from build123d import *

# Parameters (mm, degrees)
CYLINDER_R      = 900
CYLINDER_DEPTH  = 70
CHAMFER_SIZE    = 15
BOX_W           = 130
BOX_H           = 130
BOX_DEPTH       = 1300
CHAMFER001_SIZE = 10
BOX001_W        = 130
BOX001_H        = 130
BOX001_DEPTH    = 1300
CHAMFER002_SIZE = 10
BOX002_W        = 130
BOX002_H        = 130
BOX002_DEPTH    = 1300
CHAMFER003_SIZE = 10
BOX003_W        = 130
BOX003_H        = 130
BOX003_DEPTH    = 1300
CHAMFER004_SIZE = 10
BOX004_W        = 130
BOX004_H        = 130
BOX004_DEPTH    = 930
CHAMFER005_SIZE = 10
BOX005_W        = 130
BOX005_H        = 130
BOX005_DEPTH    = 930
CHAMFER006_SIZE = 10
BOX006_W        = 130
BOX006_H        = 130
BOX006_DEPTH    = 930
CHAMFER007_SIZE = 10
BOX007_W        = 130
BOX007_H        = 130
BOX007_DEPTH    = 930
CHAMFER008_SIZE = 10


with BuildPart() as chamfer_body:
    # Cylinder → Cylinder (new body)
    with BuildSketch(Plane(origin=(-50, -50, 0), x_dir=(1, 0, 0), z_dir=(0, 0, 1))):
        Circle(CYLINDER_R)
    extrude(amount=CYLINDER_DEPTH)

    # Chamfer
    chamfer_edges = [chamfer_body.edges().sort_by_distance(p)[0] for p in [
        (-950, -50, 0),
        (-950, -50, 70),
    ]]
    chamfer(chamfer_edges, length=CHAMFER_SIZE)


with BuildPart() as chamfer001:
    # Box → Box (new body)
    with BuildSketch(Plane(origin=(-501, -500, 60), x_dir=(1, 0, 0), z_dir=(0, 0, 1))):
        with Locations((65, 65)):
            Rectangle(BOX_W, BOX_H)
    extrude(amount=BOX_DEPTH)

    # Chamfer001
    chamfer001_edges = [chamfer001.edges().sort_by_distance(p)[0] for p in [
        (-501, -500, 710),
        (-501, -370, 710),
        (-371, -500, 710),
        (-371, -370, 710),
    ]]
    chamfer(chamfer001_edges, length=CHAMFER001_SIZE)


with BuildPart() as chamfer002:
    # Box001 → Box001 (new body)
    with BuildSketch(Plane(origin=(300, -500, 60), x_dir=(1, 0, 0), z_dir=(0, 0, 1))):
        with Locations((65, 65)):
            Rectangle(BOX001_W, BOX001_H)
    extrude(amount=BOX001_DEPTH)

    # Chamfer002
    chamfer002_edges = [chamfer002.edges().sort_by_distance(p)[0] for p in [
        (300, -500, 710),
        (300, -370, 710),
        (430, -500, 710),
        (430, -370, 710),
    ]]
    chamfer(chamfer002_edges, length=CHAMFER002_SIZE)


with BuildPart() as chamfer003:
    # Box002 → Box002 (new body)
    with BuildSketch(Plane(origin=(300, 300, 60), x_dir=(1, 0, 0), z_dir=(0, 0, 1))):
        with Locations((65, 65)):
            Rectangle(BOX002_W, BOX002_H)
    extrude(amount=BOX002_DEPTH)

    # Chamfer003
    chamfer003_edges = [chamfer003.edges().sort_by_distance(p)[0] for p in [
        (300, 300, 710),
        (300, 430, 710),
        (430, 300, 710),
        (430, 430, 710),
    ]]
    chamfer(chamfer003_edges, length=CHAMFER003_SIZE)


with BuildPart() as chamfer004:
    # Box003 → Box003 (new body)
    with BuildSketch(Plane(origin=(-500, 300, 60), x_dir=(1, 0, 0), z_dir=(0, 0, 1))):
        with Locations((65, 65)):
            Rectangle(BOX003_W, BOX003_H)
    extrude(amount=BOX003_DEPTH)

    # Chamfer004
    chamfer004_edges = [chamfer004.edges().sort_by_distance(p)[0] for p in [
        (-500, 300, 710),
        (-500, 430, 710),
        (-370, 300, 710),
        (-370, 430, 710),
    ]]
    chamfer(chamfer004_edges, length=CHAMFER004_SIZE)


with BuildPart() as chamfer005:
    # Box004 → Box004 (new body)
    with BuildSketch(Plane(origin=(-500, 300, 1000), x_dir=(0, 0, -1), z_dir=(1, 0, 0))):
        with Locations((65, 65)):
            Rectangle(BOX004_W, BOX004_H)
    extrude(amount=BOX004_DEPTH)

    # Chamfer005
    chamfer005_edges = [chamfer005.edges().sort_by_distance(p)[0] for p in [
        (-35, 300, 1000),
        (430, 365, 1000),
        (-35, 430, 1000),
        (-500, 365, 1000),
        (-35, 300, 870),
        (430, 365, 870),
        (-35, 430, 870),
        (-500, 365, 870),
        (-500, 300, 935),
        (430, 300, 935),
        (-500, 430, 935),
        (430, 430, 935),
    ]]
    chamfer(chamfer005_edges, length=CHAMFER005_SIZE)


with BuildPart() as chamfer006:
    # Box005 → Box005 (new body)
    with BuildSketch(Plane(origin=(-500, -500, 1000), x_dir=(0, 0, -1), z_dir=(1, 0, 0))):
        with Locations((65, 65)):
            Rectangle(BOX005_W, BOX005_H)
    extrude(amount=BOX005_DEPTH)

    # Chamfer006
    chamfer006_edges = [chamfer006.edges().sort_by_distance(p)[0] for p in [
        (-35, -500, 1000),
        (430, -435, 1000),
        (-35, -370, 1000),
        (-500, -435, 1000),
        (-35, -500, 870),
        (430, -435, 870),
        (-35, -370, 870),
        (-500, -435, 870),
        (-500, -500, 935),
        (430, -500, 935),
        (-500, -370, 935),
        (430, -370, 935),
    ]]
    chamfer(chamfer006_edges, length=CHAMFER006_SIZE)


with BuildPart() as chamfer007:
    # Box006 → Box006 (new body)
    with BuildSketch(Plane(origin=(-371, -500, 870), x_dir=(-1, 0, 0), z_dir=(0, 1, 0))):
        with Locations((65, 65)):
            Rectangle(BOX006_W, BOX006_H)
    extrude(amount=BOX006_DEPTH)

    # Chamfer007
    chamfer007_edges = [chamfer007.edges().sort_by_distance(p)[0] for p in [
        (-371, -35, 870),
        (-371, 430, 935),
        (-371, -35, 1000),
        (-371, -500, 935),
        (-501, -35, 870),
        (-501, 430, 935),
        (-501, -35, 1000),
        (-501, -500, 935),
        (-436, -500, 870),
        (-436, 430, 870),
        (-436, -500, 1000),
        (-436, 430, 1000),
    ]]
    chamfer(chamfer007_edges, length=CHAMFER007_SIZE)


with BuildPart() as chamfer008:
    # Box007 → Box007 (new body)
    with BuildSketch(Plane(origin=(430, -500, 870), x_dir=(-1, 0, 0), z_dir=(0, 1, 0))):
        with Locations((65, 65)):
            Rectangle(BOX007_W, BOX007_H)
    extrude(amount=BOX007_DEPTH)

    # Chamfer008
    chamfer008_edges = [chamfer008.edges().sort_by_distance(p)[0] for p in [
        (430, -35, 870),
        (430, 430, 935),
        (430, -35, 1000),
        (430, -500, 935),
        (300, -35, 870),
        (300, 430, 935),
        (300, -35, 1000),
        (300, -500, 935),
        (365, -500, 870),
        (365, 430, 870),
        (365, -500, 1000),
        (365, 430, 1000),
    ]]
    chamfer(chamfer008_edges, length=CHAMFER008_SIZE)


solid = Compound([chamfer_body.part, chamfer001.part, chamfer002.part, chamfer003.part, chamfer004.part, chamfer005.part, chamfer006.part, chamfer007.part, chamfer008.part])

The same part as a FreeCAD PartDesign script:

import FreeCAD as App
import Part
import Sketcher

V = App.Vector


def edges_at(feature, points):
    """Names of the edges that pass closest to the given points."""
    edges = feature.Shape.Edges
    near = lambda p: min(range(len(edges)), key=lambda i: edges[i].distToShape(Part.Vertex(*p))[0])
    return sorted({f"Edge{near(p) + 1}" for p in points})

doc = App.newDocument("Part")
body = doc.addObject("PartDesign::Body", "Body")

sketch1 = doc.addObject("Sketcher::SketchObject", "Sketch")
body.addObject(sketch1)
sketch1.AttachmentSupport = (doc.XY_Plane, [""])
sketch1.MapMode = "FlatFace"
sketch1.addGeometry(Part.Circle(V(-50, -50, 0), V(0, 0, 1), 900), False)
sketch1.addConstraint([
    Sketcher.Constraint("Diameter", 0, 1800.0),
    Sketcher.Constraint("DistanceX", 0, 3, -1, 1, 50.0),
    Sketcher.Constraint("DistanceY", 0, 3, -1, 1, 50.0),
])
pad1 = doc.addObject("PartDesign::Pad", "Pad")
body.addObject(pad1)
pad1.Profile = sketch1
pad1.Length = 70
doc.recompute()

chamfer = doc.addObject("PartDesign::Chamfer", "Chamfer")
body.addObject(chamfer)
chamfer.Base = (pad1, edges_at(pad1, [(-950, -50, 0), (-950, -50, 70)]))
chamfer.Size = 15
body2 = doc.addObject("PartDesign::Body", "Body001")

sketch2 = doc.addObject("Sketcher::SketchObject", "Sketch001")
body2.addObject(sketch2)
sketch2.AttachmentSupport = (doc.getObject("XY_Plane001"), [""])
sketch2.MapMode = "FlatFace"
sketch2.AttachmentOffset = App.Placement(V(0, 0, 60), App.Rotation())
sketch2.addGeometry([
    Part.LineSegment(V(-501, -370, 0), V(-501, -500, 0)),
    Part.LineSegment(V(-501, -500, 0), V(-371, -500, 0)),
    Part.LineSegment(V(-371, -500, 0), V(-371, -370, 0)),
    Part.LineSegment(V(-371, -370, 0), V(-501, -370, 0)),
], False)
sketch2.addConstraint([
    Sketcher.Constraint("Coincident", 0, 2, 1, 1),
    Sketcher.Constraint("Coincident", 1, 2, 2, 1),
    Sketcher.Constraint("Coincident", 2, 2, 3, 1),
    Sketcher.Constraint("Coincident", 3, 2, 0, 1),
    Sketcher.Constraint("Vertical", 0),
    Sketcher.Constraint("Horizontal", 1),
    Sketcher.Constraint("Vertical", 2),
    Sketcher.Constraint("Horizontal", 3),
    Sketcher.Constraint("Equal", 3, 0),
    Sketcher.Constraint("DistanceX", 1, 1, 1, 2, 130.0),
    Sketcher.Constraint("DistanceX", 0, 2, -1, 1, 501.0),
    Sketcher.Constraint("DistanceY", 0, 2, -1, 1, 500.0),
])
pad2 = doc.addObject("PartDesign::Pad", "Pad001")
body2.addObject(pad2)
pad2.Profile = sketch2
pad2.Length = 1300
doc.recompute()

chamfer2 = doc.addObject("PartDesign::Chamfer", "Chamfer001")
body2.addObject(chamfer2)
chamfer2.Base = (pad2, edges_at(pad2, [
    (-501, -500, 710),
    (-501, -370, 710),
    (-371, -500, 710),
    (-371, -370, 710),
]))
chamfer2.Size = 10
body3 = doc.addObject("PartDesign::Body", "Body002")

sketch3 = doc.addObject("Sketcher::SketchObject", "Sketch002")
body3.addObject(sketch3)
sketch3.AttachmentSupport = (doc.getObject("XY_Plane002"), [""])
sketch3.MapMode = "FlatFace"
sketch3.AttachmentOffset = App.Placement(V(0, 0, 60), App.Rotation())
sketch3.addGeometry([
    Part.LineSegment(V(300, -370, 0), V(300, -500, 0)),
    Part.LineSegment(V(300, -500, 0), V(430, -500, 0)),
    Part.LineSegment(V(430, -500, 0), V(430, -370, 0)),
    Part.LineSegment(V(430, -370, 0), V(300, -370, 0)),
], False)
sketch3.addConstraint([
    Sketcher.Constraint("Coincident", 0, 2, 1, 1),
    Sketcher.Constraint("Coincident", 1, 2, 2, 1),
    Sketcher.Constraint("Coincident", 2, 2, 3, 1),
    Sketcher.Constraint("Coincident", 3, 2, 0, 1),
    Sketcher.Constraint("Vertical", 0),
    Sketcher.Constraint("Horizontal", 1),
    Sketcher.Constraint("Vertical", 2),
    Sketcher.Constraint("Horizontal", 3),
    Sketcher.Constraint("Equal", 3, 0),
    Sketcher.Constraint("DistanceX", 1, 1, 1, 2, 130.0),
    Sketcher.Constraint("DistanceX", -1, 1, 0, 2, 300.0),
    Sketcher.Constraint("DistanceY", 0, 2, -1, 1, 500.0),
])
pad3 = doc.addObject("PartDesign::Pad", "Pad002")
body3.addObject(pad3)
pad3.Profile = sketch3
pad3.Length = 1300
doc.recompute()

chamfer3 = doc.addObject("PartDesign::Chamfer", "Chamfer002")
body3.addObject(chamfer3)
chamfer3.Base = (pad3, edges_at(pad3, [
    (300, -500, 710),
    (300, -370, 710),
    (430, -500, 710),
    (430, -370, 710),
]))
chamfer3.Size = 10
body4 = doc.addObject("PartDesign::Body", "Body003")

sketch4 = doc.addObject("Sketcher::SketchObject", "Sketch003")
body4.addObject(sketch4)
sketch4.AttachmentSupport = (doc.getObject("XY_Plane003"), [""])
sketch4.MapMode = "FlatFace"
sketch4.AttachmentOffset = App.Placement(V(0, 0, 60), App.Rotation())
sketch4.addGeometry([
    Part.LineSegment(V(300, 430, 0), V(300, 300, 0)),
    Part.LineSegment(V(300, 300, 0), V(430, 300, 0)),
    Part.LineSegment(V(430, 300, 0), V(430, 430, 0)),
    Part.LineSegment(V(430, 430, 0), V(300, 430, 0)),
], False)
sketch4.addConstraint([
    Sketcher.Constraint("Coincident", 0, 2, 1, 1),
    Sketcher.Constraint("Coincident", 1, 2, 2, 1),
    Sketcher.Constraint("Coincident", 2, 2, 3, 1),
    Sketcher.Constraint("Coincident", 3, 2, 0, 1),
    Sketcher.Constraint("Vertical", 0),
    Sketcher.Constraint("Horizontal", 1),
    Sketcher.Constraint("Vertical", 2),
    Sketcher.Constraint("Horizontal", 3),
    Sketcher.Constraint("Equal", 3, 0),
    Sketcher.Constraint("DistanceX", 1, 1, 1, 2, 130.0),
    Sketcher.Constraint("DistanceX", -1, 1, 0, 2, 300.0),
    Sketcher.Constraint("DistanceY", -1, 1, 0, 2, 300.0),
])
pad4 = doc.addObject("PartDesign::Pad", "Pad003")
body4.addObject(pad4)
pad4.Profile = sketch4
pad4.Length = 1300
doc.recompute()

chamfer4 = doc.addObject("PartDesign::Chamfer", "Chamfer003")
body4.addObject(chamfer4)
chamfer4.Base = (pad4, edges_at(pad4, [
    (300, 300, 710),
    (300, 430, 710),
    (430, 300, 710),
    (430, 430, 710),
]))
chamfer4.Size = 10
body5 = doc.addObject("PartDesign::Body", "Body004")

sketch5 = doc.addObject("Sketcher::SketchObject", "Sketch004")
body5.addObject(sketch5)
sketch5.AttachmentSupport = (doc.getObject("XY_Plane004"), [""])
sketch5.MapMode = "FlatFace"
sketch5.AttachmentOffset = App.Placement(V(0, 0, 60), App.Rotation())
sketch5.addGeometry([
    Part.LineSegment(V(-500, 430, 0), V(-500, 300, 0)),
    Part.LineSegment(V(-500, 300, 0), V(-370, 300, 0)),
    Part.LineSegment(V(-370, 300, 0), V(-370, 430, 0)),
    Part.LineSegment(V(-370, 430, 0), V(-500, 430, 0)),
], False)
sketch5.addConstraint([
    Sketcher.Constraint("Coincident", 0, 2, 1, 1),
    Sketcher.Constraint("Coincident", 1, 2, 2, 1),
    Sketcher.Constraint("Coincident", 2, 2, 3, 1),
    Sketcher.Constraint("Coincident", 3, 2, 0, 1),
    Sketcher.Constraint("Vertical", 0),
    Sketcher.Constraint("Horizontal", 1),
    Sketcher.Constraint("Vertical", 2),
    Sketcher.Constraint("Horizontal", 3),
    Sketcher.Constraint("Equal", 3, 0),
    Sketcher.Constraint("DistanceX", 1, 1, 1, 2, 130.0),
    Sketcher.Constraint("DistanceX", 0, 2, -1, 1, 500.0),
    Sketcher.Constraint("DistanceY", -1, 1, 0, 2, 300.0),
])
pad5 = doc.addObject("PartDesign::Pad", "Pad004")
body5.addObject(pad5)
pad5.Profile = sketch5
pad5.Length = 1300
doc.recompute()

chamfer5 = doc.addObject("PartDesign::Chamfer", "Chamfer004")
body5.addObject(chamfer5)
chamfer5.Base = (pad5, edges_at(pad5, [
    (-500, 300, 710),
    (-500, 430, 710),
    (-370, 300, 710),
    (-370, 430, 710),
]))
chamfer5.Size = 10
body6 = doc.addObject("PartDesign::Body", "Body005")

sketch6 = doc.addObject("Sketcher::SketchObject", "Sketch005")
body6.addObject(sketch6)
sketch6.AttachmentSupport = (doc.getObject("YZ_Plane005"), [""])
sketch6.MapMode = "FlatFace"
sketch6.AttachmentOffset = App.Placement(V(0, 0, -500), App.Rotation())
sketch6.addGeometry([
    Part.LineSegment(V(430, 1000, 0), V(300, 1000, 0)),
    Part.LineSegment(V(300, 1000, 0), V(300, 870, 0)),
    Part.LineSegment(V(300, 870, 0), V(430, 870, 0)),
    Part.LineSegment(V(430, 870, 0), V(430, 1000, 0)),
], False)
sketch6.addConstraint([
    Sketcher.Constraint("Coincident", 0, 2, 1, 1),
    Sketcher.Constraint("Coincident", 1, 2, 2, 1),
    Sketcher.Constraint("Coincident", 2, 2, 3, 1),
    Sketcher.Constraint("Coincident", 3, 2, 0, 1),
    Sketcher.Constraint("Horizontal", 0),
    Sketcher.Constraint("Vertical", 1),
    Sketcher.Constraint("Horizontal", 2),
    Sketcher.Constraint("Vertical", 3),
    Sketcher.Constraint("Equal", 2, 1),
    Sketcher.Constraint("DistanceX", 0, 2, 0, 1, 130.0),
    Sketcher.Constraint("DistanceX", -1, 1, 0, 2, 300.0),
    Sketcher.Constraint("DistanceY", -1, 1, 0, 2, 1000.0),
])
pad6 = doc.addObject("PartDesign::Pad", "Pad005")
body6.addObject(pad6)
pad6.Profile = sketch6
pad6.Length = 930
doc.recompute()

chamfer6 = doc.addObject("PartDesign::Chamfer", "Chamfer005")
body6.addObject(chamfer6)
chamfer6.Base = (pad6, ["Edge1"])
chamfer6.UseAllEdges = True
chamfer6.Size = 10
body7 = doc.addObject("PartDesign::Body", "Body006")

sketch7 = doc.addObject("Sketcher::SketchObject", "Sketch006")
body7.addObject(sketch7)
sketch7.AttachmentSupport = (doc.getObject("YZ_Plane006"), [""])
sketch7.MapMode = "FlatFace"
sketch7.AttachmentOffset = App.Placement(V(0, 0, -500), App.Rotation())
sketch7.addGeometry([
    Part.LineSegment(V(-370, 1000, 0), V(-500, 1000, 0)),
    Part.LineSegment(V(-500, 1000, 0), V(-500, 870, 0)),
    Part.LineSegment(V(-500, 870, 0), V(-370, 870, 0)),
    Part.LineSegment(V(-370, 870, 0), V(-370, 1000, 0)),
], False)
sketch7.addConstraint([
    Sketcher.Constraint("Coincident", 0, 2, 1, 1),
    Sketcher.Constraint("Coincident", 1, 2, 2, 1),
    Sketcher.Constraint("Coincident", 2, 2, 3, 1),
    Sketcher.Constraint("Coincident", 3, 2, 0, 1),
    Sketcher.Constraint("Horizontal", 0),
    Sketcher.Constraint("Vertical", 1),
    Sketcher.Constraint("Horizontal", 2),
    Sketcher.Constraint("Vertical", 3),
    Sketcher.Constraint("Equal", 2, 1),
    Sketcher.Constraint("DistanceX", 0, 2, 0, 1, 130.0),
    Sketcher.Constraint("DistanceX", 0, 2, -1, 1, 500.0),
    Sketcher.Constraint("DistanceY", -1, 1, 0, 2, 1000.0),
])
pad7 = doc.addObject("PartDesign::Pad", "Pad006")
body7.addObject(pad7)
pad7.Profile = sketch7
pad7.Length = 930
doc.recompute()

chamfer7 = doc.addObject("PartDesign::Chamfer", "Chamfer006")
body7.addObject(chamfer7)
chamfer7.Base = (pad7, ["Edge1"])
chamfer7.UseAllEdges = True
chamfer7.Size = 10
body8 = doc.addObject("PartDesign::Body", "Body007")

sketch8 = doc.addObject("Sketcher::SketchObject", "Sketch007")
body8.addObject(sketch8)
sketch8.AttachmentSupport = (doc.getObject("XZ_Plane007"), [""])
sketch8.MapMode = "FlatFace"
sketch8.AttachmentOffset = App.Placement(V(0, 0, 500), App.Rotation())
sketch8.addGeometry([
    Part.LineSegment(V(-371, 1000, 0), V(-371, 870, 0)),
    Part.LineSegment(V(-371, 870, 0), V(-501, 870, 0)),
    Part.LineSegment(V(-501, 870, 0), V(-501, 1000, 0)),
    Part.LineSegment(V(-501, 1000, 0), V(-371, 1000, 0)),
], False)
sketch8.addConstraint([
    Sketcher.Constraint("Coincident", 0, 2, 1, 1),
    Sketcher.Constraint("Coincident", 1, 2, 2, 1),
    Sketcher.Constraint("Coincident", 2, 2, 3, 1),
    Sketcher.Constraint("Coincident", 3, 2, 0, 1),
    Sketcher.Constraint("Vertical", 0),
    Sketcher.Constraint("Horizontal", 1),
    Sketcher.Constraint("Vertical", 2),
    Sketcher.Constraint("Horizontal", 3),
    Sketcher.Constraint("Equal", 3, 0),
    Sketcher.Constraint("DistanceX", 1, 2, 1, 1, 130.0),
    Sketcher.Constraint("DistanceX", 0, 2, -1, 1, 371.0),
    Sketcher.Constraint("DistanceY", -1, 1, 0, 2, 870.0),
])
pad8 = doc.addObject("PartDesign::Pad", "Pad007")
body8.addObject(pad8)
pad8.Profile = sketch8
pad8.Length = 930
pad8.Reversed = True
doc.recompute()

chamfer8 = doc.addObject("PartDesign::Chamfer", "Chamfer007")
body8.addObject(chamfer8)
chamfer8.Base = (pad8, ["Edge1"])
chamfer8.UseAllEdges = True
chamfer8.Size = 10
body9 = doc.addObject("PartDesign::Body", "Body008")

sketch9 = doc.addObject("Sketcher::SketchObject", "Sketch008")
body9.addObject(sketch9)
sketch9.AttachmentSupport = (doc.getObject("XZ_Plane008"), [""])
sketch9.MapMode = "FlatFace"
sketch9.AttachmentOffset = App.Placement(V(0, 0, 500), App.Rotation())
sketch9.addGeometry([
    Part.LineSegment(V(430, 1000, 0), V(430, 870, 0)),
    Part.LineSegment(V(430, 870, 0), V(300, 870, 0)),
    Part.LineSegment(V(300, 870, 0), V(300, 1000, 0)),
    Part.LineSegment(V(300, 1000, 0), V(430, 1000, 0)),
], False)
sketch9.addConstraint([
    Sketcher.Constraint("Coincident", 0, 2, 1, 1),
    Sketcher.Constraint("Coincident", 1, 2, 2, 1),
    Sketcher.Constraint("Coincident", 2, 2, 3, 1),
    Sketcher.Constraint("Coincident", 3, 2, 0, 1),
    Sketcher.Constraint("Vertical", 0),
    Sketcher.Constraint("Horizontal", 1),
    Sketcher.Constraint("Vertical", 2),
    Sketcher.Constraint("Horizontal", 3),
    Sketcher.Constraint("Equal", 3, 0),
    Sketcher.Constraint("DistanceX", 1, 2, 1, 1, 130.0),
    Sketcher.Constraint("DistanceX", -1, 1, 0, 2, 430.0),
    Sketcher.Constraint("DistanceY", -1, 1, 0, 2, 870.0),
])
pad9 = doc.addObject("PartDesign::Pad", "Pad008")
body9.addObject(pad9)
pad9.Profile = sketch9
pad9.Length = 930
pad9.Reversed = True
doc.recompute()

chamfer9 = doc.addObject("PartDesign::Chamfer", "Chamfer008")
body9.addObject(chamfer9)
chamfer9.Base = (pad9, ["Edge1"])
chamfer9.UseAllEdges = True
chamfer9.Size = 10

doc.recompute()
